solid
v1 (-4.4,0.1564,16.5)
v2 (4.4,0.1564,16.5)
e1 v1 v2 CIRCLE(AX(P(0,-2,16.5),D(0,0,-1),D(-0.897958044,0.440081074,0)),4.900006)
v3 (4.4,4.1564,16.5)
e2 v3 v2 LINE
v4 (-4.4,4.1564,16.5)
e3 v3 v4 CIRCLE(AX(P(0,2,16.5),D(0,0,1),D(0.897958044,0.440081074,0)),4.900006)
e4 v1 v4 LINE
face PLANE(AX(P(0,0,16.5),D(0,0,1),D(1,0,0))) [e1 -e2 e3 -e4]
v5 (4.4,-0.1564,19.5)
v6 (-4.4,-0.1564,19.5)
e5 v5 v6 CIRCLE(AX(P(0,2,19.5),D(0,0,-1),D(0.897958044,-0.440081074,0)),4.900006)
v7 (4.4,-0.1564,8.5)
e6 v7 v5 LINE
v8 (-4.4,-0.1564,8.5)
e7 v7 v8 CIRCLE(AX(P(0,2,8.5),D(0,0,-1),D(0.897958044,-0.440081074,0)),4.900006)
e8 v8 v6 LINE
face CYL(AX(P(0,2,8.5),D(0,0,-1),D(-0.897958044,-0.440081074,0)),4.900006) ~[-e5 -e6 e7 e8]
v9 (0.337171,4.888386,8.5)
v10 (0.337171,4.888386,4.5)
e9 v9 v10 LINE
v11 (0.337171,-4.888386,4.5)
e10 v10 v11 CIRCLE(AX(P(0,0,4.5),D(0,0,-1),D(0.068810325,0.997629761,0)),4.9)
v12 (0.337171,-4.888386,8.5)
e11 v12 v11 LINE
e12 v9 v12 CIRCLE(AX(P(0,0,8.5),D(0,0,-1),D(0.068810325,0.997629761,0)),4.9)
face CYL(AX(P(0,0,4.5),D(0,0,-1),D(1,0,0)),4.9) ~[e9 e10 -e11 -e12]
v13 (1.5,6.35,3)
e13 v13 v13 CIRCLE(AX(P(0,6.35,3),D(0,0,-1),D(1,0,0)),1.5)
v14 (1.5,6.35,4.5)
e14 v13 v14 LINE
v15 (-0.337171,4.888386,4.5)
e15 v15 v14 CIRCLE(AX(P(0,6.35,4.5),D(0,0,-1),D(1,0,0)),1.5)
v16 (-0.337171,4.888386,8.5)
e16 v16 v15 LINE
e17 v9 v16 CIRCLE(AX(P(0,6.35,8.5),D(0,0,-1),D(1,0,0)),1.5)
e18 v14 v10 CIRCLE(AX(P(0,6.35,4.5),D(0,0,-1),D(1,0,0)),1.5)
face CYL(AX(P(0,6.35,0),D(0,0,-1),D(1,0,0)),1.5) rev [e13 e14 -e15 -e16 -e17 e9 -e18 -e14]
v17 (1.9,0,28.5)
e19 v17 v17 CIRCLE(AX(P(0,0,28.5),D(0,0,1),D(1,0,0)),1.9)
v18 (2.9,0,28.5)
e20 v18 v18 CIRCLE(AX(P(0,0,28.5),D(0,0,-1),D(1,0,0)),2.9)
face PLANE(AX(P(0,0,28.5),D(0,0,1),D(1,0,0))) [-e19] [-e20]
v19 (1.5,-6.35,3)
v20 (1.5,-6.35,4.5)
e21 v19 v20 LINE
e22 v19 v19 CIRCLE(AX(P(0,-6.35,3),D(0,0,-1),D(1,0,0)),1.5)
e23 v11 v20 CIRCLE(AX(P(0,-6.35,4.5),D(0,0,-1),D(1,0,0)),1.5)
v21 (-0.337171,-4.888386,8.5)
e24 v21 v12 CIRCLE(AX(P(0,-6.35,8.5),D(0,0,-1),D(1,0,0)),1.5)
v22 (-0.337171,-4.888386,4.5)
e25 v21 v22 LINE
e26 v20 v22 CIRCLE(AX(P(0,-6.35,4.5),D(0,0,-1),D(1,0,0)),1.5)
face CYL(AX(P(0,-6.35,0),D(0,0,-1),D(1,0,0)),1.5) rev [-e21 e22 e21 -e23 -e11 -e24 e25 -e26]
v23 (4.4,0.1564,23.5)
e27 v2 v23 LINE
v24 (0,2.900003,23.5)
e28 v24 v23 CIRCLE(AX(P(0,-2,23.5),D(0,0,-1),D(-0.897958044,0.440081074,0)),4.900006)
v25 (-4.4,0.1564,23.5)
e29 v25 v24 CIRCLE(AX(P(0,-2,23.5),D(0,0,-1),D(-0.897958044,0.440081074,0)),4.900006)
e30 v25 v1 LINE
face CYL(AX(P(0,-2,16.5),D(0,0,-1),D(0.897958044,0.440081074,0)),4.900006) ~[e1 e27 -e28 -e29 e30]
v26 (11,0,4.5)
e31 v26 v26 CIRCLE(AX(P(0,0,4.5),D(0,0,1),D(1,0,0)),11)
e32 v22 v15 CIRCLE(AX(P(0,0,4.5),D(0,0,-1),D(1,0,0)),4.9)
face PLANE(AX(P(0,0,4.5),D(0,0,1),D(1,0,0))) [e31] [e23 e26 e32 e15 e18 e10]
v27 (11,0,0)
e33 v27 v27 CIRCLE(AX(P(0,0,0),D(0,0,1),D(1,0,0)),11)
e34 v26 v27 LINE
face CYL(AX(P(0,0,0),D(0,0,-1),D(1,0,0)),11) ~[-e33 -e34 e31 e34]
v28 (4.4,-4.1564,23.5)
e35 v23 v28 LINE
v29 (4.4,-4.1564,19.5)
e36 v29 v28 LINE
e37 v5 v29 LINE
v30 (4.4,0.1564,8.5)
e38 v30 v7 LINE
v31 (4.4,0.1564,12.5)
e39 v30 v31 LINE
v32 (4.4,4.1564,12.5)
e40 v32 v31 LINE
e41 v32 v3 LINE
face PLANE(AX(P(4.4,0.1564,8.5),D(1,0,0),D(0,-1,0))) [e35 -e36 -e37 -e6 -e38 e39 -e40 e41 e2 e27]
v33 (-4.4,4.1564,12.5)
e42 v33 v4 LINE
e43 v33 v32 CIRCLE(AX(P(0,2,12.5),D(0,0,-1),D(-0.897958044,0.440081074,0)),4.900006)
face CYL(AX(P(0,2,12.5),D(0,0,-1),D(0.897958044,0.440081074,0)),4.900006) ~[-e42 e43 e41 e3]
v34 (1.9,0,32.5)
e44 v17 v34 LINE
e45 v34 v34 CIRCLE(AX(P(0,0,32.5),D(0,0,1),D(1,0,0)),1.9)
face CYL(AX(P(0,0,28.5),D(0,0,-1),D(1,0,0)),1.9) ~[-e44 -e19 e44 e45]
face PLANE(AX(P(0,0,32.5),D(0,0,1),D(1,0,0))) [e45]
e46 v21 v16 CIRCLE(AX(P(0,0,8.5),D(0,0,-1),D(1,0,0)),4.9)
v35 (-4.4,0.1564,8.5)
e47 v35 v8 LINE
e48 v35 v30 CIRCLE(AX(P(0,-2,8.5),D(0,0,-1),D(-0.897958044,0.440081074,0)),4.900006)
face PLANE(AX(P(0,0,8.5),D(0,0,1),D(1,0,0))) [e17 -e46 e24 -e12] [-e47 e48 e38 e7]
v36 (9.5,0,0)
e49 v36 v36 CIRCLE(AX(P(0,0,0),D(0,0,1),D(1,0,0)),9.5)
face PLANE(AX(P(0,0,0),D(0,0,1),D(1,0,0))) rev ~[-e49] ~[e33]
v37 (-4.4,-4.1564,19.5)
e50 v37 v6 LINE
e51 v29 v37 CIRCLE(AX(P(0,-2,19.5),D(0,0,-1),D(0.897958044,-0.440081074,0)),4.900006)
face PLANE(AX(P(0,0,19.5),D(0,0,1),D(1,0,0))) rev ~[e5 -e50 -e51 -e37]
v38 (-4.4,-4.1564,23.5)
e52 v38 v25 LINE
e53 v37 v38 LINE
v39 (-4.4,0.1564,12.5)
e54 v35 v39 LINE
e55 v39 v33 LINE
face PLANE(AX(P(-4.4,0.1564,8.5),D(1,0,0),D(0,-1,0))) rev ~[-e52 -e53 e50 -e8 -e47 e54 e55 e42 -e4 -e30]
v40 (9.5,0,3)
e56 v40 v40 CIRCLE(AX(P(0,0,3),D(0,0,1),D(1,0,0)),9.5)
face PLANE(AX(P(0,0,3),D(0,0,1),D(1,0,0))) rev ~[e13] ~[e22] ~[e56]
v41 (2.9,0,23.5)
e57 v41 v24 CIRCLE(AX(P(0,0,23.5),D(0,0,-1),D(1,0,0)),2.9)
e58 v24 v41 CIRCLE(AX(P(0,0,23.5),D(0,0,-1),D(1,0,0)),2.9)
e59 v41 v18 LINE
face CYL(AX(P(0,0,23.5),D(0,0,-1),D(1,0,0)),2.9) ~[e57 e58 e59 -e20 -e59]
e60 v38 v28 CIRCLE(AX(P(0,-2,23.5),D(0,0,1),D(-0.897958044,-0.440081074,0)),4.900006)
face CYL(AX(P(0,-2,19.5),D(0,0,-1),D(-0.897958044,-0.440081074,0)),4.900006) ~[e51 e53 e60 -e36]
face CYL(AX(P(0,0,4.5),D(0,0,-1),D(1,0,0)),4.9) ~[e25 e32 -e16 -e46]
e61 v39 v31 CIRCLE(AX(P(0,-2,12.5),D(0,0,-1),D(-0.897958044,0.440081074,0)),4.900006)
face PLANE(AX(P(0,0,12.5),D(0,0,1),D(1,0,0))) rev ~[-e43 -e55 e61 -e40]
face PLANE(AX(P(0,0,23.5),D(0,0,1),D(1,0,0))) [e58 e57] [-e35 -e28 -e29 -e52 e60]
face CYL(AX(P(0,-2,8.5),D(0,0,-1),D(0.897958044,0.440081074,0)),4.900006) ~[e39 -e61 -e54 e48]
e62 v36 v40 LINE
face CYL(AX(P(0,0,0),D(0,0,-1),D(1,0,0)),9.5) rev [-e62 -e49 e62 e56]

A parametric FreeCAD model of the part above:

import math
import FreeCAD as App
import Part
import Sketcher

V = App.Vector
Q = App.Units.Quantity

doc = App.newDocument("Part")
params = doc.addObject("Spreadsheet::Sheet", "Params")
for row, (alias, value) in enumerate([
    ("sketch1_diameter", "19 mm"),
    ("sketch1_diameter2", "22 mm"),
    ("pad1_length", "3 mm"),
    ("sketch2_diameter", "22 mm"),
    ("pad2_length", "1.5 mm"),
    ("sketch3_diameter", "9.8 mm"),
    ("pad3_length", "4 mm"),
    ("sketch4_diameter", "3 mm"),
    ("sketch5_radius", "4.9 mm"),
    ("pad4_length", "4 mm"),
    ("sketch6_diameter", "3 mm"),
    ("sketch6_diameter2", "5 mm"),
    ("pocket2_length", "3 mm"),
    ("sketch7_radius", "4.9 mm"),
    ("pad5_length", "4 mm"),
    ("sketch8_radius", "4.9 mm"),
    ("pad6_length", "3 mm"),
    ("sketch9_radius", "4.9 mm"),
    ("pad7_length", "4 mm"),
    ("sketch10_diameter", "5.8 mm"),
    ("pad8_length", "5 mm"),
    ("sketch11_diameter", "3.8 mm"),
    ("pad9_length", "4 mm"),
], start=1):
    params.set(f"A{row}", alias)
    params.set(f"B{row}", "=" + value)
    params.setAlias(f"B{row}", alias)

body = doc.addObject("PartDesign::Body", "Body")

sketch1 = body.newObject("Sketcher::SketchObject", "Sketch")
sketch1.AttachmentSupport = (doc.getObject("XY_Plane"), [""])
sketch1.MapMode = "FlatFace"
sketch1.addGeometry([
    Part.Circle(V(0, 0, 0), V(0, 0, 1), 11),
    Part.Circle(V(0, 0, 0), V(0, 0, 1), 9.5),
], False)
sketch1.addConstraint([
    Sketcher.Constraint("Coincident", 0, 3, -1, 1),
    Sketcher.Constraint("Coincident", 1, 3, -1, 1),
    Sketcher.Constraint("Diameter", 1, Q("19 mm")),
    Sketcher.Constraint("Diameter", 0, Q("22 mm")),
])
sketch1.setExpression("Constraints[2]", "Params.sketch1_diameter")
sketch1.setExpression("Constraints[3]", "Params.sketch1_diameter2")
pad1 = body.newObject("PartDesign::Pad", "Pad")
pad1.Profile = sketch1
pad1.setExpression("Length", "Params.pad1_length")

sketch2 = body.newObject("Sketcher::SketchObject", "Sketch001")
sketch2.AttachmentSupport = (doc.getObject("XY_Plane"), [""])
sketch2.MapMode = "FlatFace"
sketch2.AttachmentOffset = App.Placement(V(0, 0, 3), App.Rotation())
sketch2.addGeometry(Part.Circle(V(0, 0, 0), V(0, 0, 1), 11), False)
sketch2.addConstraint([
    Sketcher.Constraint("Coincident", 0, 3, -1, 1),
    Sketcher.Constraint("Diameter", 0, Q("22 mm")),
])
sketch2.setExpression("Constraints[1]", "Params.sketch2_diameter")
pad2 = body.newObject("PartDesign::Pad", "Pad001")
pad2.Profile = sketch2
pad2.setExpression("Length", "Params.pad2_length")

sketch3 = body.newObject("Sketcher::SketchObject", "Sketch002")
sketch3.AttachmentSupport = (doc.getObject("XY_Plane"), [""])
sketch3.MapMode = "FlatFace"
sketch3.AttachmentOffset = App.Placement(V(0, 0, 4.5), App.Rotation())
sketch3.addGeometry(Part.Circle(V(0, 0, 0), V(0, 0, 1), 4.9), False)
sketch3.addConstraint([
    Sketcher.Constraint("Coincident", 0, 3, -1, 1),
    Sketcher.Constraint("Diameter", 0, Q("9.8 mm")),
])
sketch3.setExpression("Constraints[1]", "Params.sketch3_diameter")
pad3 = body.newObject("PartDesign::Pad", "Pad002")
pad3.Profile = sketch3
pad3.setExpression("Length", "Params.pad3_length")

sketch4 = body.newObject("Sketcher::SketchObject", "Sketch003")
sketch4.AttachmentSupport = (doc.getObject("XY_Plane"), [""])
sketch4.MapMode = "FlatFace"
sketch4.addGeometry([
    Part.Circle(V(0, -6.35, 0), V(0, 0, 1), 1.5),
    Part.Circle(V(0, 6.35, 0), V(0, 0, 1), 1.5),
], False)
sketch4.addConstraint([
    Sketcher.Constraint("Equal", 0, 1),
    Sketcher.Constraint("Symmetric", 0, 3, 1, 3, -1, 1),
    Sketcher.Constraint("PointOnObject", 0, 3, -2),
    Sketcher.Constraint("Diameter", 0, Q("3 mm")),
    Sketcher.Constraint("DistanceY", 0, 3, -1, 1, Q("6.35 mm")),
])
sketch4.setExpression("Constraints[3]", "Params.sketch4_diameter")
pocket1 = body.newObject("PartDesign::Pocket", "Pocket")
pocket1.Profile = sketch4
pocket1.Type = "ThroughAll"
pocket1.Reversed = True

sketch5 = body.newObject("Sketcher::SketchObject", "Sketch004")
sketch5.AttachmentSupport = (doc.getObject("XY_Plane"), [""])
sketch5.MapMode = "FlatFace"
sketch5.AttachmentOffset = App.Placement(V(0, 0, 8.5), App.Rotation())
sketch5.addGeometry([
    Part.LineSegment(V(-4.4, 0.1564, 0), V(-4.4, -0.1564, 0)),
    Part.ArcOfCircle(Part.Circle(V(0, 2, 0), V(0, 0, 1), 4.900006), math.radians(-153.890946), math.radians(-26.109054)),
    Part.LineSegment(V(4.4, -0.1564, 0), V(4.4, 0.1564, 0)),
    Part.ArcOfCircle(Part.Circle(V(0, -2, 0), V(0, 0, 1), 4.900006), math.radians(26.109054), math.radians(153.890946)),
], False)
sketch5.addConstraint([
    Sketcher.Constraint("Coincident", 0, 2, 1, 1),
    Sketcher.Constraint("Coincident", 1, 2, 2, 1),
    Sketcher.Constraint("Coincident", 2, 2, 3, 1),
    Sketcher.Constraint("Coincident", 3, 2, 0, 1),
    Sketcher.Constraint("Vertical", 0),
    Sketcher.Constraint("Vertical", 2),
    Sketcher.Constraint("Equal", 1, 3),
    Sketcher.Constraint("Symmetric", 1, 3, 3, 3, -1, 1),
    Sketcher.Constraint("Symmetric", 0, 2, 1, 2, -2),
    Sketcher.Constraint("Radius", 1, Q("4.9 mm")),
    Sketcher.Constraint("DistanceY", -1, 1, 1, 3, Q("2 mm")),
    Sketcher.Constraint("DistanceX", 0, 2, -1, 1, Q("4.4 mm")),
])
sketch5.setExpression("Constraints[9]", "Params.sketch5_radius")
pad4 = body.newObject("PartDesign::Pad", "Pad003")
pad4.Profile = sketch5
pad4.setExpression("Length", "Params.pad4_length")

sketch6 = body.newObject("Sketcher::SketchObject", "Sketch005")
sketch6.AttachmentSupport = (doc.getObject("XY_Plane"), [""])
sketch6.MapMode = "FlatFace"
sketch6.AttachmentOffset = App.Placement(V(0, 0, 12.5), App.Rotation())
sketch6.addGeometry([
    Part.Circle(V(0, -6.35, 0), V(0, 0, 1), 2.5),
    Part.Circle(V(0, -6.35, 0), V(0, 0, 1), 1.5),
    Part.Circle(V(0, 6.35, 0), V(0, 0, 1), 2.5),
], False)
sketch6.addConstraint([
    Sketcher.Constraint("Coincident", 1, 3, 0, 3),
    Sketcher.Constraint("Equal", 0, 2),
    Sketcher.Constraint("Symmetric", 0, 3, 2, 3, -1, 1),
    Sketcher.Constraint("PointOnObject", 0, 3, -2),
    Sketcher.Constraint("Diameter", 1, Q("3 mm")),
    Sketcher.Constraint("Diameter", 0, Q("5 mm")),
    Sketcher.Constraint("DistanceY", 0, 3, -1, 1, Q("6.35 mm")),
])
sketch6.setExpression("Constraints[4]", "Params.sketch6_diameter")
sketch6.setExpression("Constraints[5]", "Params.sketch6_diameter2")
pocket2 = body.newObject("PartDesign::Pocket", "Pocket001")
pocket2.Profile = sketch6
pocket2.setExpression("Length", "Params.pocket2_length")
pocket2.Reversed = True

sketch7 = body.newObject("Sketcher::SketchObject", "Sketch006")
sketch7.AttachmentSupport = (doc.getObject("XY_Plane"), [""])
sketch7.MapMode = "FlatFace"
sketch7.AttachmentOffset = App.Placement(V(0, 0, 12.5), App.Rotation())
sketch7.addGeometry([
    Part.ArcOfCircle(Part.Circle(V(0, 2, 0), V(0, 0, 1), 4.900006), math.radians(-153.890946), math.radians(-26.109054)),
    Part.LineSegment(V(4.4, -0.1564, 0), V(4.4, 4.1564, 0)),
    Part.ArcOfCircle(Part.Circle(V(0, 2, 0), V(0, 0, 1), 4.900006), math.radians(26.109054), math.radians(153.890946)),
    Part.LineSegment(V(-4.4, 4.1564, 0), V(-4.4, -0.1564, 0)),
], False)
sketch7.addConstraint([
    Sketcher.Constraint("Coincident", 0, 2, 1, 1),
    Sketcher.Constraint("Coincident", 1, 2, 2, 1),
    Sketcher.Constraint("Coincident", 2, 2, 3, 1),
    Sketcher.Constraint("Coincident", 3, 2, 0, 1),
    Sketcher.Constraint("Vertical", 1),
    Sketcher.Constraint("Vertical", 3),
    Sketcher.Constraint("Coincident", 2, 3, 0, 3),
    Sketcher.Constraint("Equal", 0, 2),
    Sketcher.Constraint("Symmetric", 1, 2, 2, 2, -2),
    Sketcher.Constraint("Radius", 0, Q("4.9 mm")),
    Sketcher.Constraint("DistanceY", -1, 1, 0, 3, Q("2 mm")),
    Sketcher.Constraint("DistanceX", -1, 1, 0, 2, Q("4.4 mm")),
])
sketch7.setExpression("Constraints[9]", "Params.sketch7_radius")
pad5 = body.newObject("PartDesign::Pad", "Pad004")
pad5.Profile = sketch7
pad5.setExpression("Length", "Params.pad5_length")

sketch8 = body.newObject("Sketcher::SketchObject", "Sketch007")
sketch8.AttachmentSupport = (doc.getObject("XY_Plane"), [""])
sketch8.MapMode = "FlatFace"
sketch8.AttachmentOffset = App.Placement(V(0, 0, 16.5), App.Rotation())
sketch8.addGeometry([
    Part.LineSegment(V(-4.4, 0.1564, 0), V(-4.4, -0.1564, 0)),
    Part.ArcOfCircle(Part.Circle(V(0, 2, 0), V(0, 0, 1), 4.900006), math.radians(-153.890946), math.radians(-26.109054)),
    Part.LineSegment(V(4.4, -0.1564, 0), V(4.4, 0.1564, 0)),
    Part.ArcOfCircle(Part.Circle(V(0, -2, 0), V(0, 0, 1), 4.900006), math.radians(26.109054), math.radians(153.890946)),
], False)
sketch8.addConstraint([
    Sketcher.Constraint("Coincident", 0, 2, 1, 1),
    Sketcher.Constraint("Coincident", 1, 2, 2, 1),
    Sketcher.Constraint("Coincident", 2, 2, 3, 1),
    Sketcher.Constraint("Coincident", 3, 2, 0, 1),
    Sketcher.Constraint("Vertical", 0),
    Sketcher.Constraint("Vertical", 2),
    Sketcher.Constraint("Equal", 1, 3),
    Sketcher.Constraint("Symmetric", 1, 3, 3, 3, -1, 1),
    Sketcher.Constraint("Symmetric", 0, 2, 1, 2, -2),
    Sketcher.Constraint("Radius", 1, Q("4.9 mm")),
    Sketcher.Constraint("DistanceY", -1, 1, 1, 3, Q("2 mm")),
    Sketcher.Constraint("DistanceX", 0, 2, -1, 1, Q("4.4 mm")),
])
sketch8.setExpression("Constraints[9]", "Params.sketch8_radius")
pad6 = body.newObject("PartDesign::Pad", "Pad005")
pad6.Profile = sketch8
pad6.setExpression("Length", "Params.pad6_length")

sketch9 = body.newObject("Sketcher::SketchObject", "Sketch008")
sketch9.AttachmentSupport = (doc.getObject("XY_Plane"), [""])
sketch9.MapMode = "FlatFace"
sketch9.AttachmentOffset = App.Placement(V(0, 0, 19.5), App.Rotation())
sketch9.addGeometry([
    Part.LineSegment(V(-4.4, 0.1564, 0), V(-4.4, -4.1564, 0)),
    Part.ArcOfCircle(Part.Circle(V(0, -2, 0), V(0, 0, 1), 4.900006), math.radians(-153.890946), math.radians(-26.109054)),
    Part.LineSegment(V(4.4, -4.1564, 0), V(4.4, 0.1564, 0)),
    Part.ArcOfCircle(Part.Circle(V(0, -2, 0), V(0, 0, 1), 4.900006), math.radians(26.109054), math.radians(153.890946)),
], False)
sketch9.addConstraint([
    Sketcher.Constraint("Coincident", 0, 2, 1, 1),
    Sketcher.Constraint("Coincident", 1, 2, 2, 1),
    Sketcher.Constraint("Coincident", 2, 2, 3, 1),
    Sketcher.Constraint("Coincident", 3, 2, 0, 1),
    Sketcher.Constraint("Vertical", 0),
    Sketcher.Constraint("Vertical", 2),
    Sketcher.Constraint("Coincident", 3, 3, 1, 3),
    Sketcher.Constraint("Equal", 1, 3),
    Sketcher.Constraint("Symmetric", 0, 2, 1, 2, -2),
    Sketcher.Constraint("Radius", 1, Q("4.9 mm")),
    Sketcher.Constraint("DistanceY", 1, 3, -1, 1, Q("2 mm")),
    Sketcher.Constraint("DistanceX", 0, 2, -1, 1, Q("4.4 mm")),
])
sketch9.setExpression("Constraints[9]", "Params.sketch9_radius")
pad7 = body.newObject("PartDesign::Pad", "Pad006")
pad7.Profile = sketch9
pad7.setExpression("Length", "Params.pad7_length")

sketch10 = body.newObject("Sketcher::SketchObject", "Sketch009")
sketch10.AttachmentSupport = (doc.getObject("XY_Plane"), [""])
sketch10.MapMode = "FlatFace"
sketch10.AttachmentOffset = App.Placement(V(0, 0, 23.5), App.Rotation())
sketch10.addGeometry(Part.Circle(V(0, 0, 0), V(0, 0, 1), 2.9), False)
sketch10.addConstraint([
    Sketcher.Constraint("Coincident", 0, 3, -1, 1),
    Sketcher.Constraint("Diameter", 0, Q("5.8 mm")),
])
sketch10.setExpression("Constraints[1]", "Params.sketch10_diameter")
pad8 = body.newObject("PartDesign::Pad", "Pad007")
pad8.Profile = sketch10
pad8.setExpression("Length", "Params.pad8_length")

sketch11 = body.newObject("Sketcher::SketchObject", "Sketch010")
sketch11.AttachmentSupport = (doc.getObject("XY_Plane"), [""])
sketch11.MapMode = "FlatFace"
sketch11.AttachmentOffset = App.Placement(V(0, 0, 28.5), App.Rotation())
sketch11.addGeometry(Part.Circle(V(0, 0, 0), V(0, 0, 1), 1.9), False)
sketch11.addConstraint([
    Sketcher.Constraint("Coincident", 0, 3, -1, 1),
    Sketcher.Constraint("Diameter", 0, Q("3.8 mm")),
])
sketch11.setExpression("Constraints[1]", "Params.sketch11_diameter")
pad9 = body.newObject("PartDesign::Pad", "Pad008")
pad9.Profile = sketch11
pad9.setExpression("Length", "Params.pad9_length")

doc.recompute()
